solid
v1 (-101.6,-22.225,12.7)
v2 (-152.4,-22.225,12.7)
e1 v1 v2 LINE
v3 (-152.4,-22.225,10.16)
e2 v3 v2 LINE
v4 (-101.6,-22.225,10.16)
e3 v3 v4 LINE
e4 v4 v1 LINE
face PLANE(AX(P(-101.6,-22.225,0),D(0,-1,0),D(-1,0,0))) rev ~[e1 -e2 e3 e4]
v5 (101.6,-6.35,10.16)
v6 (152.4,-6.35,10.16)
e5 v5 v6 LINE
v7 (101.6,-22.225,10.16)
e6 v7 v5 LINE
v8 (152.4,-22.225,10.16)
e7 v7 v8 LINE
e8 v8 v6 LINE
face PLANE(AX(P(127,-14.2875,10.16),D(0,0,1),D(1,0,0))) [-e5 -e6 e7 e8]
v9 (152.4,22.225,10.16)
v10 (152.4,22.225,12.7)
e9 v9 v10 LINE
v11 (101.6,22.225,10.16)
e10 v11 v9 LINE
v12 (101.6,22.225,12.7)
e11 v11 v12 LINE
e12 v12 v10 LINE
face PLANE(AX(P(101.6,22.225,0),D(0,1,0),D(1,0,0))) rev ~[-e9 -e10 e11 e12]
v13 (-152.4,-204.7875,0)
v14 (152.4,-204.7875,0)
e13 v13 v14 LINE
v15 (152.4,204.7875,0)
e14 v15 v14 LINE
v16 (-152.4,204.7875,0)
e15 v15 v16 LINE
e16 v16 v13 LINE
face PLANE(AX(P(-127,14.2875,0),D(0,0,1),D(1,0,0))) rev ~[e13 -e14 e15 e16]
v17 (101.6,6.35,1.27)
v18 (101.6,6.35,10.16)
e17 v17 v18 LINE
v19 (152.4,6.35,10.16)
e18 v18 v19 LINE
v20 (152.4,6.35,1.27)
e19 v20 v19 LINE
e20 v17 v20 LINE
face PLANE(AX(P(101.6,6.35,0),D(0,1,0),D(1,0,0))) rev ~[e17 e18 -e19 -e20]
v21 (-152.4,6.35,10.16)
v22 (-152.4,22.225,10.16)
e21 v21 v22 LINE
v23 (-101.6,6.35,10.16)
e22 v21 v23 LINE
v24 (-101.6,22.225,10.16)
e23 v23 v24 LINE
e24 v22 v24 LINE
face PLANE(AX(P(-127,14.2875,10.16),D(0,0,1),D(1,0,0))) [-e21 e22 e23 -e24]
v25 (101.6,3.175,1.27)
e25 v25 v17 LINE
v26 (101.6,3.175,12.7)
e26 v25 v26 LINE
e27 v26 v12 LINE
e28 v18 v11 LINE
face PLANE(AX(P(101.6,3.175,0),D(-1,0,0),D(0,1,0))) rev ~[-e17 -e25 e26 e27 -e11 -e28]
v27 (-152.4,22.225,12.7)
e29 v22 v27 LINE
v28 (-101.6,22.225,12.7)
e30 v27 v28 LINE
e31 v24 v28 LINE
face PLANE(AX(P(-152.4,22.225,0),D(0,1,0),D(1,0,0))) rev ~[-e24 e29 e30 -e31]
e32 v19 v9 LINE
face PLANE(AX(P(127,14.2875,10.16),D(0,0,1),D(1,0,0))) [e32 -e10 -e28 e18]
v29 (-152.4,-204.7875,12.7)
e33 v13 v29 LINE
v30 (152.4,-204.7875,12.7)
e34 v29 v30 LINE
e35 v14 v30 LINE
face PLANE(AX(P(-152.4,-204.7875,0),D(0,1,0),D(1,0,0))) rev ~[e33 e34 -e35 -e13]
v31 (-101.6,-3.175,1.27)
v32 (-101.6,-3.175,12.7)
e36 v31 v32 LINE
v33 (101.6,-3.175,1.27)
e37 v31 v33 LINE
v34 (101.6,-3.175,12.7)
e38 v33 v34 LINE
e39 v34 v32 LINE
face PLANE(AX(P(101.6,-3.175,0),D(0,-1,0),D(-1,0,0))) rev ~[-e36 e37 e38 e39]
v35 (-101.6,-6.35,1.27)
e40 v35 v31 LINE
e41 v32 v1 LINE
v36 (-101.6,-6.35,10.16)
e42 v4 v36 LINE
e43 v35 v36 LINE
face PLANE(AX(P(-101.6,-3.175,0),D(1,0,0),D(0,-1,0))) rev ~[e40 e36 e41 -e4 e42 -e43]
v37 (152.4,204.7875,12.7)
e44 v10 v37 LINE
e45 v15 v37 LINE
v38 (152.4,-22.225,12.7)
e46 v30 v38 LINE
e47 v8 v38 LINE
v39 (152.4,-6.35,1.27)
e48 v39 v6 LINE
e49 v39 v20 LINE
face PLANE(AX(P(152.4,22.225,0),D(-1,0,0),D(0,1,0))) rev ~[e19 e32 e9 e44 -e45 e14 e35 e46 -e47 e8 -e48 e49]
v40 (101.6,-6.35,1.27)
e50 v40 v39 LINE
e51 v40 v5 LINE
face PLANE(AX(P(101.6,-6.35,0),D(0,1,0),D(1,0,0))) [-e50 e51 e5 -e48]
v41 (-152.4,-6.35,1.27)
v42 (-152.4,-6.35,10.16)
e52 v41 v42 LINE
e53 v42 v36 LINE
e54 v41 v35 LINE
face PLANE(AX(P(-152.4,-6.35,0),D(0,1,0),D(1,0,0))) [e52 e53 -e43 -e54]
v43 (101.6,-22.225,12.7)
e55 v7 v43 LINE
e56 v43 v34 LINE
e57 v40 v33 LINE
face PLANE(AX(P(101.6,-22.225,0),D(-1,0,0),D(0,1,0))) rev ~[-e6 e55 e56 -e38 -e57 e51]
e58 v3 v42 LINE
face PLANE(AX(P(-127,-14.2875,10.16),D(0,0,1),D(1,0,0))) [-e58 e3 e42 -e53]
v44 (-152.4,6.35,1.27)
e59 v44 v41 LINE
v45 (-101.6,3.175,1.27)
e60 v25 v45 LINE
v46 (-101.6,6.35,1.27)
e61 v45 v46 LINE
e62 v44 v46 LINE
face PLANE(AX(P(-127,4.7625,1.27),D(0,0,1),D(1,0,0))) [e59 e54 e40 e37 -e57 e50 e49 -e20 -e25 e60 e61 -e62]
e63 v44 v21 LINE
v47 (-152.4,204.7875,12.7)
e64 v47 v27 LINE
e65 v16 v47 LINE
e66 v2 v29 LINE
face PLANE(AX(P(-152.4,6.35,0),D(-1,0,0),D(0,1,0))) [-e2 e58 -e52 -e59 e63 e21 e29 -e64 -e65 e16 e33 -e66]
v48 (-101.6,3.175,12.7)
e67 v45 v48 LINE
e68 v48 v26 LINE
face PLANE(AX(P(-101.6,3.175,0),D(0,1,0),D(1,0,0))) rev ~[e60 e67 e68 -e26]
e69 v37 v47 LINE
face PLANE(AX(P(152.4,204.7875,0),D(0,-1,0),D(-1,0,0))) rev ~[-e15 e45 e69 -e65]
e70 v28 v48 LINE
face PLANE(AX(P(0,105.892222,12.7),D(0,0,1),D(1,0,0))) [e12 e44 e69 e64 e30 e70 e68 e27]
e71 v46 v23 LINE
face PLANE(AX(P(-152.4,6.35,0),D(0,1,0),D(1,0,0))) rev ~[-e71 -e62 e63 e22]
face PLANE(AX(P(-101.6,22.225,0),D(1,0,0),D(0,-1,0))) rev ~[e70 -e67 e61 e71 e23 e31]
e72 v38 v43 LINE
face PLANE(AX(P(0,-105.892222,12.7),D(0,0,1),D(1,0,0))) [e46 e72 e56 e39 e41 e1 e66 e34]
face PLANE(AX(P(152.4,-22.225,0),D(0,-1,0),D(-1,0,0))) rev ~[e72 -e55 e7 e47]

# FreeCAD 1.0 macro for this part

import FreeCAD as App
import Part
import Sketcher
from FreeCAD import Vector
Q = App.Units.Quantity


def add_polygon(sketch, points):
    """Adds a closed chain of lines whose ends are joined by coincident constraints."""
    first, n = sketch.GeometryCount, len(points)
    for a, b in zip(points, points[1:] + points[:1]):
        sketch.addGeometry(Part.LineSegment(App.Vector(*a, 0), App.Vector(*b, 0)), False)
    for i in range(n):
        sketch.addConstraint(Sketcher.Constraint("Coincident", first + i, 2, first + (i + 1) % n, 1))

doc = App.newDocument("Part")
params = doc.addObject("Spreadsheet::Sheet", "Params")
for row, (alias, value) in enumerate([
    ("sketch1_width", "2 in"),
    ("sketch1_width2", "8 in"),
    ("sketch1_height", "0.5 in"),
    ("sketch1_height2", "0.125 in"),
    ("pad1_length", "0.05 in"),
    ("sketch2_width", "8 in"),
    ("sketch2_width2", "2 in"),
    ("sketch2_height", "0.75 in"),
    ("sketch2_height2", "7.1875 in"),
    ("pad2_length", "0.5 in"),
    ("sketch3_width", "2 in"),
    ("sketch3_height", "0.625 in"),
    ("pad3_length", "0.4 in"),
], start=1):
    params.set(f"A{row}", alias)
    params.set(f"B{row}", "=" + value)
    params.setAlias(f"B{row}", alias)

body = doc.addObject("PartDesign::Body", "Body")

sketch1 = body.newObject("Sketcher::SketchObject", "Sketch")
sketch1.AttachmentSupport = (doc.getObject("XY_Plane"), [""])
sketch1.MapMode = "FlatFace"
add_polygon(sketch1, [(-152.4, 6.35), (-152.4, -6.35), (-101.6, -6.35), (-101.6, -3.175), (101.6, -3.175), (101.6, -6.35), (152.4, -6.35), (152.4, 6.35), (101.6, 6.35), (101.6, 3.175), (-101.6, 3.175), (-101.6, 6.35)])
sketch1.addConstraint([
    Sketcher.Constraint("Vertical", 0),
    Sketcher.Constraint("Horizontal", 1),
    Sketcher.Constraint("Vertical", 2),
    Sketcher.Constraint("Horizontal", 3),
    Sketcher.Constraint("Vertical", 4),
    Sketcher.Constraint("Horizontal", 5),
    Sketcher.Constraint("Vertical", 6),
    Sketcher.Constraint("Horizontal", 7),
    Sketcher.Constraint("Vertical", 8),
    Sketcher.Constraint("Horizontal", 9),
    Sketcher.Constraint("Vertical", 10),
    Sketcher.Constraint("Horizontal", 11),
    Sketcher.Constraint("Symmetric", 0, 2, 6, 2, -1, 1),
    Sketcher.Constraint("Symmetric", 2, 2, 8, 2, -1, 1),
    Sketcher.Constraint("Symmetric", 4, 2, 10, 2, -1, 1),
    Sketcher.Constraint("Symmetric", 1, 2, 4, 2, -2),
    Sketcher.Constraint("DistanceX", 1, 1, 1, 2, Q("2 in")),
    Sketcher.Constraint("DistanceX", 3, 1, 3, 2, Q("8 in")),
    Sketcher.Constraint("DistanceY", 0, 2, 0, 1, Q("0.5 in")),
    Sketcher.Constraint("DistanceY", 2, 1, 2, 2, Q("0.125 in")),
])
sketch1.setExpression("Constraints[28]", "Params.sketch1_width")
sketch1.setExpression("Constraints[29]", "Params.sketch1_width2")
sketch1.setExpression("Constraints[30]", "Params.sketch1_height")
sketch1.setExpression("Constraints[31]", "Params.sketch1_height2")
pad1 = body.newObject("PartDesign::Pad", "Pad")
pad1.Profile = sketch1
pad1.setExpression("Length", "Params.pad1_length")

sketch2 = body.newObject("Sketcher::SketchObject", "Sketch001")
sketch2.AttachmentSupport = (doc.getObject("XY_Plane"), [""])
sketch2.MapMode = "FlatFace"
add_polygon(sketch2, [(-101.6, 3.175), (101.6, 3.175), (101.6, 22.225), (152.4, 22.225), (152.4, 204.7875), (-152.4, 204.7875), (-152.4, 22.225), (-101.6, 22.225)])
add_polygon(sketch2, [(-152.4, -204.7875), (152.4, -204.7875), (152.4, -22.225), (101.6, -22.225), (101.6, -3.175), (-101.6, -3.175), (-101.6, -22.225), (-152.4, -22.225)])
sketch2.addConstraint([
    Sketcher.Constraint("Horizontal", 0),
    Sketcher.Constraint("Vertical", 1),
    Sketcher.Constraint("Horizontal", 2),
    Sketcher.Constraint("Vertical", 3),
    Sketcher.Constraint("Horizontal", 4),
    Sketcher.Constraint("Vertical", 5),
    Sketcher.Constraint("Horizontal", 6),
    Sketcher.Constraint("Vertical", 7),
    Sketcher.Constraint("Horizontal", 8),
    Sketcher.Constraint("Vertical", 9),
    Sketcher.Constraint("Horizontal", 10),
    Sketcher.Constraint("Vertical", 11),
    Sketcher.Constraint("Horizontal", 12),
    Sketcher.Constraint("Vertical", 13),
    Sketcher.Constraint("Horizontal", 14),
    Sketcher.Constraint("Vertical", 15),
    Sketcher.Constraint("Symmetric", 4, 2, 8, 2, -1, 1),
    Sketcher.Constraint("Symmetric", 6, 2, 10, 2, -1, 1),
    Sketcher.Constraint("Symmetric", 0, 2, 12, 2, -1, 1),
    Sketcher.Constraint("Symmetric", 2, 2, 14, 2, -1, 1),
    Sketcher.Constraint("Symmetric", 2, 2, 5, 2, -2),
    Sketcher.Constraint("Vertical", 1, 2, 10, 2),
    Sketcher.Constraint("DistanceX", 0, 1, 0, 2, Q("8 in")),
    Sketcher.Constraint("DistanceX", 2, 1, 2, 2, Q("2 in")),
    Sketcher.Constraint("DistanceY", 9, 2, 0, 2, Q("1 in")),
    Sketcher.Constraint("DistanceY", 1, 1, 1, 2, Q("0.75 in")),
    Sketcher.Constraint("DistanceY", 3, 1, 3, 2, Q("7.1875 in")),
])
sketch2.setExpression("Constraints[38]", "Params.sketch2_width")
sketch2.setExpression("Constraints[39]", "Params.sketch2_width2")
sketch2.setExpression("Constraints[41]", "Params.sketch2_height")
sketch2.setExpression("Constraints[42]", "Params.sketch2_height2")
pad2 = body.newObject("PartDesign::Pad", "Pad001")
pad2.Profile = sketch2
pad2.setExpression("Length", "Params.pad2_length")

sketch3 = body.newObject("Sketcher::SketchObject", "Sketch002")
sketch3.AttachmentSupport = (doc.getObject("XY_Plane"), [""])
sketch3.MapMode = "FlatFace"
add_polygon(sketch3, [(-152.4, 22.225), (-152.4, 6.35), (-101.6, 6.35), (-101.6, 22.225)])
add_polygon(sketch3, [(-152.4, -6.35), (-152.4, -22.225), (-101.6, -22.225), (-101.6, -6.35)])
add_polygon(sketch3, [(101.6, -6.35), (101.6, -22.225), (152.4, -22.225), (152.4, -6.35)])
add_polygon(sketch3, [(101.6, 22.225), (101.6, 6.35), (152.4, 6.35), (152.4, 22.225)])
sketch3.addConstraint([
    Sketcher.Constraint("Vertical", 0),
    Sketcher.Constraint("Horizontal", 1),
    Sketcher.Constraint("Vertical", 2),
    Sketcher.Constraint("Horizontal", 3),
    Sketcher.Constraint("Vertical", 4),
    Sketcher.Constraint("Horizontal", 5),
    Sketcher.Constraint("Vertical", 6),
    Sketcher.Constraint("Horizontal", 7),
    Sketcher.Constraint("Vertical", 8),
    Sketcher.Constraint("Horizontal", 9),
    Sketcher.Constraint("Vertical", 10),
    Sketcher.Constraint("Horizontal", 11),
    Sketcher.Constraint("Vertical", 12),
    Sketcher.Constraint("Horizontal", 13),
    Sketcher.Constraint("Vertical", 14),
    Sketcher.Constraint("Horizontal", 15),
    Sketcher.Constraint("Symmetric", 2, 2, 8, 2, -1, 1),
    Sketcher.Constraint("Symmetric", 0, 2, 10, 2, -1, 1),
    Sketcher.Constraint("Symmetric", 6, 2, 12, 2, -1, 1),
    Sketcher.Constraint("Symmetric", 4, 2, 14, 2, -1, 1),
    Sketcher.Constraint("Symmetric", 5, 2, 8, 2, -2),
    Sketcher.Constraint("Symmetric", 7, 2, 10, 2, -2),
    Sketcher.Constraint("DistanceX", 1, 1, 1, 2, Q("2 in")),
    Sketcher.Constraint("DistanceX", 0, 2, -1, 1, Q("6 in")),
    Sketcher.Constraint("DistanceY", 6, 2, 1, 2, Q("0.5 in")),
    Sketcher.Constraint("DistanceY", 0, 2, 0, 1, Q("0.625 in")),
])
sketch3.setExpression("Constraints[38]", "Params.sketch3_width")
sketch3.setExpression("Constraints[41]", "Params.sketch3_height")
pad3 = body.newObject("PartDesign::Pad", "Pad002")
pad3.Profile = sketch3
pad3.setExpression("Length", "Params.pad3_length")

doc.recompute()
